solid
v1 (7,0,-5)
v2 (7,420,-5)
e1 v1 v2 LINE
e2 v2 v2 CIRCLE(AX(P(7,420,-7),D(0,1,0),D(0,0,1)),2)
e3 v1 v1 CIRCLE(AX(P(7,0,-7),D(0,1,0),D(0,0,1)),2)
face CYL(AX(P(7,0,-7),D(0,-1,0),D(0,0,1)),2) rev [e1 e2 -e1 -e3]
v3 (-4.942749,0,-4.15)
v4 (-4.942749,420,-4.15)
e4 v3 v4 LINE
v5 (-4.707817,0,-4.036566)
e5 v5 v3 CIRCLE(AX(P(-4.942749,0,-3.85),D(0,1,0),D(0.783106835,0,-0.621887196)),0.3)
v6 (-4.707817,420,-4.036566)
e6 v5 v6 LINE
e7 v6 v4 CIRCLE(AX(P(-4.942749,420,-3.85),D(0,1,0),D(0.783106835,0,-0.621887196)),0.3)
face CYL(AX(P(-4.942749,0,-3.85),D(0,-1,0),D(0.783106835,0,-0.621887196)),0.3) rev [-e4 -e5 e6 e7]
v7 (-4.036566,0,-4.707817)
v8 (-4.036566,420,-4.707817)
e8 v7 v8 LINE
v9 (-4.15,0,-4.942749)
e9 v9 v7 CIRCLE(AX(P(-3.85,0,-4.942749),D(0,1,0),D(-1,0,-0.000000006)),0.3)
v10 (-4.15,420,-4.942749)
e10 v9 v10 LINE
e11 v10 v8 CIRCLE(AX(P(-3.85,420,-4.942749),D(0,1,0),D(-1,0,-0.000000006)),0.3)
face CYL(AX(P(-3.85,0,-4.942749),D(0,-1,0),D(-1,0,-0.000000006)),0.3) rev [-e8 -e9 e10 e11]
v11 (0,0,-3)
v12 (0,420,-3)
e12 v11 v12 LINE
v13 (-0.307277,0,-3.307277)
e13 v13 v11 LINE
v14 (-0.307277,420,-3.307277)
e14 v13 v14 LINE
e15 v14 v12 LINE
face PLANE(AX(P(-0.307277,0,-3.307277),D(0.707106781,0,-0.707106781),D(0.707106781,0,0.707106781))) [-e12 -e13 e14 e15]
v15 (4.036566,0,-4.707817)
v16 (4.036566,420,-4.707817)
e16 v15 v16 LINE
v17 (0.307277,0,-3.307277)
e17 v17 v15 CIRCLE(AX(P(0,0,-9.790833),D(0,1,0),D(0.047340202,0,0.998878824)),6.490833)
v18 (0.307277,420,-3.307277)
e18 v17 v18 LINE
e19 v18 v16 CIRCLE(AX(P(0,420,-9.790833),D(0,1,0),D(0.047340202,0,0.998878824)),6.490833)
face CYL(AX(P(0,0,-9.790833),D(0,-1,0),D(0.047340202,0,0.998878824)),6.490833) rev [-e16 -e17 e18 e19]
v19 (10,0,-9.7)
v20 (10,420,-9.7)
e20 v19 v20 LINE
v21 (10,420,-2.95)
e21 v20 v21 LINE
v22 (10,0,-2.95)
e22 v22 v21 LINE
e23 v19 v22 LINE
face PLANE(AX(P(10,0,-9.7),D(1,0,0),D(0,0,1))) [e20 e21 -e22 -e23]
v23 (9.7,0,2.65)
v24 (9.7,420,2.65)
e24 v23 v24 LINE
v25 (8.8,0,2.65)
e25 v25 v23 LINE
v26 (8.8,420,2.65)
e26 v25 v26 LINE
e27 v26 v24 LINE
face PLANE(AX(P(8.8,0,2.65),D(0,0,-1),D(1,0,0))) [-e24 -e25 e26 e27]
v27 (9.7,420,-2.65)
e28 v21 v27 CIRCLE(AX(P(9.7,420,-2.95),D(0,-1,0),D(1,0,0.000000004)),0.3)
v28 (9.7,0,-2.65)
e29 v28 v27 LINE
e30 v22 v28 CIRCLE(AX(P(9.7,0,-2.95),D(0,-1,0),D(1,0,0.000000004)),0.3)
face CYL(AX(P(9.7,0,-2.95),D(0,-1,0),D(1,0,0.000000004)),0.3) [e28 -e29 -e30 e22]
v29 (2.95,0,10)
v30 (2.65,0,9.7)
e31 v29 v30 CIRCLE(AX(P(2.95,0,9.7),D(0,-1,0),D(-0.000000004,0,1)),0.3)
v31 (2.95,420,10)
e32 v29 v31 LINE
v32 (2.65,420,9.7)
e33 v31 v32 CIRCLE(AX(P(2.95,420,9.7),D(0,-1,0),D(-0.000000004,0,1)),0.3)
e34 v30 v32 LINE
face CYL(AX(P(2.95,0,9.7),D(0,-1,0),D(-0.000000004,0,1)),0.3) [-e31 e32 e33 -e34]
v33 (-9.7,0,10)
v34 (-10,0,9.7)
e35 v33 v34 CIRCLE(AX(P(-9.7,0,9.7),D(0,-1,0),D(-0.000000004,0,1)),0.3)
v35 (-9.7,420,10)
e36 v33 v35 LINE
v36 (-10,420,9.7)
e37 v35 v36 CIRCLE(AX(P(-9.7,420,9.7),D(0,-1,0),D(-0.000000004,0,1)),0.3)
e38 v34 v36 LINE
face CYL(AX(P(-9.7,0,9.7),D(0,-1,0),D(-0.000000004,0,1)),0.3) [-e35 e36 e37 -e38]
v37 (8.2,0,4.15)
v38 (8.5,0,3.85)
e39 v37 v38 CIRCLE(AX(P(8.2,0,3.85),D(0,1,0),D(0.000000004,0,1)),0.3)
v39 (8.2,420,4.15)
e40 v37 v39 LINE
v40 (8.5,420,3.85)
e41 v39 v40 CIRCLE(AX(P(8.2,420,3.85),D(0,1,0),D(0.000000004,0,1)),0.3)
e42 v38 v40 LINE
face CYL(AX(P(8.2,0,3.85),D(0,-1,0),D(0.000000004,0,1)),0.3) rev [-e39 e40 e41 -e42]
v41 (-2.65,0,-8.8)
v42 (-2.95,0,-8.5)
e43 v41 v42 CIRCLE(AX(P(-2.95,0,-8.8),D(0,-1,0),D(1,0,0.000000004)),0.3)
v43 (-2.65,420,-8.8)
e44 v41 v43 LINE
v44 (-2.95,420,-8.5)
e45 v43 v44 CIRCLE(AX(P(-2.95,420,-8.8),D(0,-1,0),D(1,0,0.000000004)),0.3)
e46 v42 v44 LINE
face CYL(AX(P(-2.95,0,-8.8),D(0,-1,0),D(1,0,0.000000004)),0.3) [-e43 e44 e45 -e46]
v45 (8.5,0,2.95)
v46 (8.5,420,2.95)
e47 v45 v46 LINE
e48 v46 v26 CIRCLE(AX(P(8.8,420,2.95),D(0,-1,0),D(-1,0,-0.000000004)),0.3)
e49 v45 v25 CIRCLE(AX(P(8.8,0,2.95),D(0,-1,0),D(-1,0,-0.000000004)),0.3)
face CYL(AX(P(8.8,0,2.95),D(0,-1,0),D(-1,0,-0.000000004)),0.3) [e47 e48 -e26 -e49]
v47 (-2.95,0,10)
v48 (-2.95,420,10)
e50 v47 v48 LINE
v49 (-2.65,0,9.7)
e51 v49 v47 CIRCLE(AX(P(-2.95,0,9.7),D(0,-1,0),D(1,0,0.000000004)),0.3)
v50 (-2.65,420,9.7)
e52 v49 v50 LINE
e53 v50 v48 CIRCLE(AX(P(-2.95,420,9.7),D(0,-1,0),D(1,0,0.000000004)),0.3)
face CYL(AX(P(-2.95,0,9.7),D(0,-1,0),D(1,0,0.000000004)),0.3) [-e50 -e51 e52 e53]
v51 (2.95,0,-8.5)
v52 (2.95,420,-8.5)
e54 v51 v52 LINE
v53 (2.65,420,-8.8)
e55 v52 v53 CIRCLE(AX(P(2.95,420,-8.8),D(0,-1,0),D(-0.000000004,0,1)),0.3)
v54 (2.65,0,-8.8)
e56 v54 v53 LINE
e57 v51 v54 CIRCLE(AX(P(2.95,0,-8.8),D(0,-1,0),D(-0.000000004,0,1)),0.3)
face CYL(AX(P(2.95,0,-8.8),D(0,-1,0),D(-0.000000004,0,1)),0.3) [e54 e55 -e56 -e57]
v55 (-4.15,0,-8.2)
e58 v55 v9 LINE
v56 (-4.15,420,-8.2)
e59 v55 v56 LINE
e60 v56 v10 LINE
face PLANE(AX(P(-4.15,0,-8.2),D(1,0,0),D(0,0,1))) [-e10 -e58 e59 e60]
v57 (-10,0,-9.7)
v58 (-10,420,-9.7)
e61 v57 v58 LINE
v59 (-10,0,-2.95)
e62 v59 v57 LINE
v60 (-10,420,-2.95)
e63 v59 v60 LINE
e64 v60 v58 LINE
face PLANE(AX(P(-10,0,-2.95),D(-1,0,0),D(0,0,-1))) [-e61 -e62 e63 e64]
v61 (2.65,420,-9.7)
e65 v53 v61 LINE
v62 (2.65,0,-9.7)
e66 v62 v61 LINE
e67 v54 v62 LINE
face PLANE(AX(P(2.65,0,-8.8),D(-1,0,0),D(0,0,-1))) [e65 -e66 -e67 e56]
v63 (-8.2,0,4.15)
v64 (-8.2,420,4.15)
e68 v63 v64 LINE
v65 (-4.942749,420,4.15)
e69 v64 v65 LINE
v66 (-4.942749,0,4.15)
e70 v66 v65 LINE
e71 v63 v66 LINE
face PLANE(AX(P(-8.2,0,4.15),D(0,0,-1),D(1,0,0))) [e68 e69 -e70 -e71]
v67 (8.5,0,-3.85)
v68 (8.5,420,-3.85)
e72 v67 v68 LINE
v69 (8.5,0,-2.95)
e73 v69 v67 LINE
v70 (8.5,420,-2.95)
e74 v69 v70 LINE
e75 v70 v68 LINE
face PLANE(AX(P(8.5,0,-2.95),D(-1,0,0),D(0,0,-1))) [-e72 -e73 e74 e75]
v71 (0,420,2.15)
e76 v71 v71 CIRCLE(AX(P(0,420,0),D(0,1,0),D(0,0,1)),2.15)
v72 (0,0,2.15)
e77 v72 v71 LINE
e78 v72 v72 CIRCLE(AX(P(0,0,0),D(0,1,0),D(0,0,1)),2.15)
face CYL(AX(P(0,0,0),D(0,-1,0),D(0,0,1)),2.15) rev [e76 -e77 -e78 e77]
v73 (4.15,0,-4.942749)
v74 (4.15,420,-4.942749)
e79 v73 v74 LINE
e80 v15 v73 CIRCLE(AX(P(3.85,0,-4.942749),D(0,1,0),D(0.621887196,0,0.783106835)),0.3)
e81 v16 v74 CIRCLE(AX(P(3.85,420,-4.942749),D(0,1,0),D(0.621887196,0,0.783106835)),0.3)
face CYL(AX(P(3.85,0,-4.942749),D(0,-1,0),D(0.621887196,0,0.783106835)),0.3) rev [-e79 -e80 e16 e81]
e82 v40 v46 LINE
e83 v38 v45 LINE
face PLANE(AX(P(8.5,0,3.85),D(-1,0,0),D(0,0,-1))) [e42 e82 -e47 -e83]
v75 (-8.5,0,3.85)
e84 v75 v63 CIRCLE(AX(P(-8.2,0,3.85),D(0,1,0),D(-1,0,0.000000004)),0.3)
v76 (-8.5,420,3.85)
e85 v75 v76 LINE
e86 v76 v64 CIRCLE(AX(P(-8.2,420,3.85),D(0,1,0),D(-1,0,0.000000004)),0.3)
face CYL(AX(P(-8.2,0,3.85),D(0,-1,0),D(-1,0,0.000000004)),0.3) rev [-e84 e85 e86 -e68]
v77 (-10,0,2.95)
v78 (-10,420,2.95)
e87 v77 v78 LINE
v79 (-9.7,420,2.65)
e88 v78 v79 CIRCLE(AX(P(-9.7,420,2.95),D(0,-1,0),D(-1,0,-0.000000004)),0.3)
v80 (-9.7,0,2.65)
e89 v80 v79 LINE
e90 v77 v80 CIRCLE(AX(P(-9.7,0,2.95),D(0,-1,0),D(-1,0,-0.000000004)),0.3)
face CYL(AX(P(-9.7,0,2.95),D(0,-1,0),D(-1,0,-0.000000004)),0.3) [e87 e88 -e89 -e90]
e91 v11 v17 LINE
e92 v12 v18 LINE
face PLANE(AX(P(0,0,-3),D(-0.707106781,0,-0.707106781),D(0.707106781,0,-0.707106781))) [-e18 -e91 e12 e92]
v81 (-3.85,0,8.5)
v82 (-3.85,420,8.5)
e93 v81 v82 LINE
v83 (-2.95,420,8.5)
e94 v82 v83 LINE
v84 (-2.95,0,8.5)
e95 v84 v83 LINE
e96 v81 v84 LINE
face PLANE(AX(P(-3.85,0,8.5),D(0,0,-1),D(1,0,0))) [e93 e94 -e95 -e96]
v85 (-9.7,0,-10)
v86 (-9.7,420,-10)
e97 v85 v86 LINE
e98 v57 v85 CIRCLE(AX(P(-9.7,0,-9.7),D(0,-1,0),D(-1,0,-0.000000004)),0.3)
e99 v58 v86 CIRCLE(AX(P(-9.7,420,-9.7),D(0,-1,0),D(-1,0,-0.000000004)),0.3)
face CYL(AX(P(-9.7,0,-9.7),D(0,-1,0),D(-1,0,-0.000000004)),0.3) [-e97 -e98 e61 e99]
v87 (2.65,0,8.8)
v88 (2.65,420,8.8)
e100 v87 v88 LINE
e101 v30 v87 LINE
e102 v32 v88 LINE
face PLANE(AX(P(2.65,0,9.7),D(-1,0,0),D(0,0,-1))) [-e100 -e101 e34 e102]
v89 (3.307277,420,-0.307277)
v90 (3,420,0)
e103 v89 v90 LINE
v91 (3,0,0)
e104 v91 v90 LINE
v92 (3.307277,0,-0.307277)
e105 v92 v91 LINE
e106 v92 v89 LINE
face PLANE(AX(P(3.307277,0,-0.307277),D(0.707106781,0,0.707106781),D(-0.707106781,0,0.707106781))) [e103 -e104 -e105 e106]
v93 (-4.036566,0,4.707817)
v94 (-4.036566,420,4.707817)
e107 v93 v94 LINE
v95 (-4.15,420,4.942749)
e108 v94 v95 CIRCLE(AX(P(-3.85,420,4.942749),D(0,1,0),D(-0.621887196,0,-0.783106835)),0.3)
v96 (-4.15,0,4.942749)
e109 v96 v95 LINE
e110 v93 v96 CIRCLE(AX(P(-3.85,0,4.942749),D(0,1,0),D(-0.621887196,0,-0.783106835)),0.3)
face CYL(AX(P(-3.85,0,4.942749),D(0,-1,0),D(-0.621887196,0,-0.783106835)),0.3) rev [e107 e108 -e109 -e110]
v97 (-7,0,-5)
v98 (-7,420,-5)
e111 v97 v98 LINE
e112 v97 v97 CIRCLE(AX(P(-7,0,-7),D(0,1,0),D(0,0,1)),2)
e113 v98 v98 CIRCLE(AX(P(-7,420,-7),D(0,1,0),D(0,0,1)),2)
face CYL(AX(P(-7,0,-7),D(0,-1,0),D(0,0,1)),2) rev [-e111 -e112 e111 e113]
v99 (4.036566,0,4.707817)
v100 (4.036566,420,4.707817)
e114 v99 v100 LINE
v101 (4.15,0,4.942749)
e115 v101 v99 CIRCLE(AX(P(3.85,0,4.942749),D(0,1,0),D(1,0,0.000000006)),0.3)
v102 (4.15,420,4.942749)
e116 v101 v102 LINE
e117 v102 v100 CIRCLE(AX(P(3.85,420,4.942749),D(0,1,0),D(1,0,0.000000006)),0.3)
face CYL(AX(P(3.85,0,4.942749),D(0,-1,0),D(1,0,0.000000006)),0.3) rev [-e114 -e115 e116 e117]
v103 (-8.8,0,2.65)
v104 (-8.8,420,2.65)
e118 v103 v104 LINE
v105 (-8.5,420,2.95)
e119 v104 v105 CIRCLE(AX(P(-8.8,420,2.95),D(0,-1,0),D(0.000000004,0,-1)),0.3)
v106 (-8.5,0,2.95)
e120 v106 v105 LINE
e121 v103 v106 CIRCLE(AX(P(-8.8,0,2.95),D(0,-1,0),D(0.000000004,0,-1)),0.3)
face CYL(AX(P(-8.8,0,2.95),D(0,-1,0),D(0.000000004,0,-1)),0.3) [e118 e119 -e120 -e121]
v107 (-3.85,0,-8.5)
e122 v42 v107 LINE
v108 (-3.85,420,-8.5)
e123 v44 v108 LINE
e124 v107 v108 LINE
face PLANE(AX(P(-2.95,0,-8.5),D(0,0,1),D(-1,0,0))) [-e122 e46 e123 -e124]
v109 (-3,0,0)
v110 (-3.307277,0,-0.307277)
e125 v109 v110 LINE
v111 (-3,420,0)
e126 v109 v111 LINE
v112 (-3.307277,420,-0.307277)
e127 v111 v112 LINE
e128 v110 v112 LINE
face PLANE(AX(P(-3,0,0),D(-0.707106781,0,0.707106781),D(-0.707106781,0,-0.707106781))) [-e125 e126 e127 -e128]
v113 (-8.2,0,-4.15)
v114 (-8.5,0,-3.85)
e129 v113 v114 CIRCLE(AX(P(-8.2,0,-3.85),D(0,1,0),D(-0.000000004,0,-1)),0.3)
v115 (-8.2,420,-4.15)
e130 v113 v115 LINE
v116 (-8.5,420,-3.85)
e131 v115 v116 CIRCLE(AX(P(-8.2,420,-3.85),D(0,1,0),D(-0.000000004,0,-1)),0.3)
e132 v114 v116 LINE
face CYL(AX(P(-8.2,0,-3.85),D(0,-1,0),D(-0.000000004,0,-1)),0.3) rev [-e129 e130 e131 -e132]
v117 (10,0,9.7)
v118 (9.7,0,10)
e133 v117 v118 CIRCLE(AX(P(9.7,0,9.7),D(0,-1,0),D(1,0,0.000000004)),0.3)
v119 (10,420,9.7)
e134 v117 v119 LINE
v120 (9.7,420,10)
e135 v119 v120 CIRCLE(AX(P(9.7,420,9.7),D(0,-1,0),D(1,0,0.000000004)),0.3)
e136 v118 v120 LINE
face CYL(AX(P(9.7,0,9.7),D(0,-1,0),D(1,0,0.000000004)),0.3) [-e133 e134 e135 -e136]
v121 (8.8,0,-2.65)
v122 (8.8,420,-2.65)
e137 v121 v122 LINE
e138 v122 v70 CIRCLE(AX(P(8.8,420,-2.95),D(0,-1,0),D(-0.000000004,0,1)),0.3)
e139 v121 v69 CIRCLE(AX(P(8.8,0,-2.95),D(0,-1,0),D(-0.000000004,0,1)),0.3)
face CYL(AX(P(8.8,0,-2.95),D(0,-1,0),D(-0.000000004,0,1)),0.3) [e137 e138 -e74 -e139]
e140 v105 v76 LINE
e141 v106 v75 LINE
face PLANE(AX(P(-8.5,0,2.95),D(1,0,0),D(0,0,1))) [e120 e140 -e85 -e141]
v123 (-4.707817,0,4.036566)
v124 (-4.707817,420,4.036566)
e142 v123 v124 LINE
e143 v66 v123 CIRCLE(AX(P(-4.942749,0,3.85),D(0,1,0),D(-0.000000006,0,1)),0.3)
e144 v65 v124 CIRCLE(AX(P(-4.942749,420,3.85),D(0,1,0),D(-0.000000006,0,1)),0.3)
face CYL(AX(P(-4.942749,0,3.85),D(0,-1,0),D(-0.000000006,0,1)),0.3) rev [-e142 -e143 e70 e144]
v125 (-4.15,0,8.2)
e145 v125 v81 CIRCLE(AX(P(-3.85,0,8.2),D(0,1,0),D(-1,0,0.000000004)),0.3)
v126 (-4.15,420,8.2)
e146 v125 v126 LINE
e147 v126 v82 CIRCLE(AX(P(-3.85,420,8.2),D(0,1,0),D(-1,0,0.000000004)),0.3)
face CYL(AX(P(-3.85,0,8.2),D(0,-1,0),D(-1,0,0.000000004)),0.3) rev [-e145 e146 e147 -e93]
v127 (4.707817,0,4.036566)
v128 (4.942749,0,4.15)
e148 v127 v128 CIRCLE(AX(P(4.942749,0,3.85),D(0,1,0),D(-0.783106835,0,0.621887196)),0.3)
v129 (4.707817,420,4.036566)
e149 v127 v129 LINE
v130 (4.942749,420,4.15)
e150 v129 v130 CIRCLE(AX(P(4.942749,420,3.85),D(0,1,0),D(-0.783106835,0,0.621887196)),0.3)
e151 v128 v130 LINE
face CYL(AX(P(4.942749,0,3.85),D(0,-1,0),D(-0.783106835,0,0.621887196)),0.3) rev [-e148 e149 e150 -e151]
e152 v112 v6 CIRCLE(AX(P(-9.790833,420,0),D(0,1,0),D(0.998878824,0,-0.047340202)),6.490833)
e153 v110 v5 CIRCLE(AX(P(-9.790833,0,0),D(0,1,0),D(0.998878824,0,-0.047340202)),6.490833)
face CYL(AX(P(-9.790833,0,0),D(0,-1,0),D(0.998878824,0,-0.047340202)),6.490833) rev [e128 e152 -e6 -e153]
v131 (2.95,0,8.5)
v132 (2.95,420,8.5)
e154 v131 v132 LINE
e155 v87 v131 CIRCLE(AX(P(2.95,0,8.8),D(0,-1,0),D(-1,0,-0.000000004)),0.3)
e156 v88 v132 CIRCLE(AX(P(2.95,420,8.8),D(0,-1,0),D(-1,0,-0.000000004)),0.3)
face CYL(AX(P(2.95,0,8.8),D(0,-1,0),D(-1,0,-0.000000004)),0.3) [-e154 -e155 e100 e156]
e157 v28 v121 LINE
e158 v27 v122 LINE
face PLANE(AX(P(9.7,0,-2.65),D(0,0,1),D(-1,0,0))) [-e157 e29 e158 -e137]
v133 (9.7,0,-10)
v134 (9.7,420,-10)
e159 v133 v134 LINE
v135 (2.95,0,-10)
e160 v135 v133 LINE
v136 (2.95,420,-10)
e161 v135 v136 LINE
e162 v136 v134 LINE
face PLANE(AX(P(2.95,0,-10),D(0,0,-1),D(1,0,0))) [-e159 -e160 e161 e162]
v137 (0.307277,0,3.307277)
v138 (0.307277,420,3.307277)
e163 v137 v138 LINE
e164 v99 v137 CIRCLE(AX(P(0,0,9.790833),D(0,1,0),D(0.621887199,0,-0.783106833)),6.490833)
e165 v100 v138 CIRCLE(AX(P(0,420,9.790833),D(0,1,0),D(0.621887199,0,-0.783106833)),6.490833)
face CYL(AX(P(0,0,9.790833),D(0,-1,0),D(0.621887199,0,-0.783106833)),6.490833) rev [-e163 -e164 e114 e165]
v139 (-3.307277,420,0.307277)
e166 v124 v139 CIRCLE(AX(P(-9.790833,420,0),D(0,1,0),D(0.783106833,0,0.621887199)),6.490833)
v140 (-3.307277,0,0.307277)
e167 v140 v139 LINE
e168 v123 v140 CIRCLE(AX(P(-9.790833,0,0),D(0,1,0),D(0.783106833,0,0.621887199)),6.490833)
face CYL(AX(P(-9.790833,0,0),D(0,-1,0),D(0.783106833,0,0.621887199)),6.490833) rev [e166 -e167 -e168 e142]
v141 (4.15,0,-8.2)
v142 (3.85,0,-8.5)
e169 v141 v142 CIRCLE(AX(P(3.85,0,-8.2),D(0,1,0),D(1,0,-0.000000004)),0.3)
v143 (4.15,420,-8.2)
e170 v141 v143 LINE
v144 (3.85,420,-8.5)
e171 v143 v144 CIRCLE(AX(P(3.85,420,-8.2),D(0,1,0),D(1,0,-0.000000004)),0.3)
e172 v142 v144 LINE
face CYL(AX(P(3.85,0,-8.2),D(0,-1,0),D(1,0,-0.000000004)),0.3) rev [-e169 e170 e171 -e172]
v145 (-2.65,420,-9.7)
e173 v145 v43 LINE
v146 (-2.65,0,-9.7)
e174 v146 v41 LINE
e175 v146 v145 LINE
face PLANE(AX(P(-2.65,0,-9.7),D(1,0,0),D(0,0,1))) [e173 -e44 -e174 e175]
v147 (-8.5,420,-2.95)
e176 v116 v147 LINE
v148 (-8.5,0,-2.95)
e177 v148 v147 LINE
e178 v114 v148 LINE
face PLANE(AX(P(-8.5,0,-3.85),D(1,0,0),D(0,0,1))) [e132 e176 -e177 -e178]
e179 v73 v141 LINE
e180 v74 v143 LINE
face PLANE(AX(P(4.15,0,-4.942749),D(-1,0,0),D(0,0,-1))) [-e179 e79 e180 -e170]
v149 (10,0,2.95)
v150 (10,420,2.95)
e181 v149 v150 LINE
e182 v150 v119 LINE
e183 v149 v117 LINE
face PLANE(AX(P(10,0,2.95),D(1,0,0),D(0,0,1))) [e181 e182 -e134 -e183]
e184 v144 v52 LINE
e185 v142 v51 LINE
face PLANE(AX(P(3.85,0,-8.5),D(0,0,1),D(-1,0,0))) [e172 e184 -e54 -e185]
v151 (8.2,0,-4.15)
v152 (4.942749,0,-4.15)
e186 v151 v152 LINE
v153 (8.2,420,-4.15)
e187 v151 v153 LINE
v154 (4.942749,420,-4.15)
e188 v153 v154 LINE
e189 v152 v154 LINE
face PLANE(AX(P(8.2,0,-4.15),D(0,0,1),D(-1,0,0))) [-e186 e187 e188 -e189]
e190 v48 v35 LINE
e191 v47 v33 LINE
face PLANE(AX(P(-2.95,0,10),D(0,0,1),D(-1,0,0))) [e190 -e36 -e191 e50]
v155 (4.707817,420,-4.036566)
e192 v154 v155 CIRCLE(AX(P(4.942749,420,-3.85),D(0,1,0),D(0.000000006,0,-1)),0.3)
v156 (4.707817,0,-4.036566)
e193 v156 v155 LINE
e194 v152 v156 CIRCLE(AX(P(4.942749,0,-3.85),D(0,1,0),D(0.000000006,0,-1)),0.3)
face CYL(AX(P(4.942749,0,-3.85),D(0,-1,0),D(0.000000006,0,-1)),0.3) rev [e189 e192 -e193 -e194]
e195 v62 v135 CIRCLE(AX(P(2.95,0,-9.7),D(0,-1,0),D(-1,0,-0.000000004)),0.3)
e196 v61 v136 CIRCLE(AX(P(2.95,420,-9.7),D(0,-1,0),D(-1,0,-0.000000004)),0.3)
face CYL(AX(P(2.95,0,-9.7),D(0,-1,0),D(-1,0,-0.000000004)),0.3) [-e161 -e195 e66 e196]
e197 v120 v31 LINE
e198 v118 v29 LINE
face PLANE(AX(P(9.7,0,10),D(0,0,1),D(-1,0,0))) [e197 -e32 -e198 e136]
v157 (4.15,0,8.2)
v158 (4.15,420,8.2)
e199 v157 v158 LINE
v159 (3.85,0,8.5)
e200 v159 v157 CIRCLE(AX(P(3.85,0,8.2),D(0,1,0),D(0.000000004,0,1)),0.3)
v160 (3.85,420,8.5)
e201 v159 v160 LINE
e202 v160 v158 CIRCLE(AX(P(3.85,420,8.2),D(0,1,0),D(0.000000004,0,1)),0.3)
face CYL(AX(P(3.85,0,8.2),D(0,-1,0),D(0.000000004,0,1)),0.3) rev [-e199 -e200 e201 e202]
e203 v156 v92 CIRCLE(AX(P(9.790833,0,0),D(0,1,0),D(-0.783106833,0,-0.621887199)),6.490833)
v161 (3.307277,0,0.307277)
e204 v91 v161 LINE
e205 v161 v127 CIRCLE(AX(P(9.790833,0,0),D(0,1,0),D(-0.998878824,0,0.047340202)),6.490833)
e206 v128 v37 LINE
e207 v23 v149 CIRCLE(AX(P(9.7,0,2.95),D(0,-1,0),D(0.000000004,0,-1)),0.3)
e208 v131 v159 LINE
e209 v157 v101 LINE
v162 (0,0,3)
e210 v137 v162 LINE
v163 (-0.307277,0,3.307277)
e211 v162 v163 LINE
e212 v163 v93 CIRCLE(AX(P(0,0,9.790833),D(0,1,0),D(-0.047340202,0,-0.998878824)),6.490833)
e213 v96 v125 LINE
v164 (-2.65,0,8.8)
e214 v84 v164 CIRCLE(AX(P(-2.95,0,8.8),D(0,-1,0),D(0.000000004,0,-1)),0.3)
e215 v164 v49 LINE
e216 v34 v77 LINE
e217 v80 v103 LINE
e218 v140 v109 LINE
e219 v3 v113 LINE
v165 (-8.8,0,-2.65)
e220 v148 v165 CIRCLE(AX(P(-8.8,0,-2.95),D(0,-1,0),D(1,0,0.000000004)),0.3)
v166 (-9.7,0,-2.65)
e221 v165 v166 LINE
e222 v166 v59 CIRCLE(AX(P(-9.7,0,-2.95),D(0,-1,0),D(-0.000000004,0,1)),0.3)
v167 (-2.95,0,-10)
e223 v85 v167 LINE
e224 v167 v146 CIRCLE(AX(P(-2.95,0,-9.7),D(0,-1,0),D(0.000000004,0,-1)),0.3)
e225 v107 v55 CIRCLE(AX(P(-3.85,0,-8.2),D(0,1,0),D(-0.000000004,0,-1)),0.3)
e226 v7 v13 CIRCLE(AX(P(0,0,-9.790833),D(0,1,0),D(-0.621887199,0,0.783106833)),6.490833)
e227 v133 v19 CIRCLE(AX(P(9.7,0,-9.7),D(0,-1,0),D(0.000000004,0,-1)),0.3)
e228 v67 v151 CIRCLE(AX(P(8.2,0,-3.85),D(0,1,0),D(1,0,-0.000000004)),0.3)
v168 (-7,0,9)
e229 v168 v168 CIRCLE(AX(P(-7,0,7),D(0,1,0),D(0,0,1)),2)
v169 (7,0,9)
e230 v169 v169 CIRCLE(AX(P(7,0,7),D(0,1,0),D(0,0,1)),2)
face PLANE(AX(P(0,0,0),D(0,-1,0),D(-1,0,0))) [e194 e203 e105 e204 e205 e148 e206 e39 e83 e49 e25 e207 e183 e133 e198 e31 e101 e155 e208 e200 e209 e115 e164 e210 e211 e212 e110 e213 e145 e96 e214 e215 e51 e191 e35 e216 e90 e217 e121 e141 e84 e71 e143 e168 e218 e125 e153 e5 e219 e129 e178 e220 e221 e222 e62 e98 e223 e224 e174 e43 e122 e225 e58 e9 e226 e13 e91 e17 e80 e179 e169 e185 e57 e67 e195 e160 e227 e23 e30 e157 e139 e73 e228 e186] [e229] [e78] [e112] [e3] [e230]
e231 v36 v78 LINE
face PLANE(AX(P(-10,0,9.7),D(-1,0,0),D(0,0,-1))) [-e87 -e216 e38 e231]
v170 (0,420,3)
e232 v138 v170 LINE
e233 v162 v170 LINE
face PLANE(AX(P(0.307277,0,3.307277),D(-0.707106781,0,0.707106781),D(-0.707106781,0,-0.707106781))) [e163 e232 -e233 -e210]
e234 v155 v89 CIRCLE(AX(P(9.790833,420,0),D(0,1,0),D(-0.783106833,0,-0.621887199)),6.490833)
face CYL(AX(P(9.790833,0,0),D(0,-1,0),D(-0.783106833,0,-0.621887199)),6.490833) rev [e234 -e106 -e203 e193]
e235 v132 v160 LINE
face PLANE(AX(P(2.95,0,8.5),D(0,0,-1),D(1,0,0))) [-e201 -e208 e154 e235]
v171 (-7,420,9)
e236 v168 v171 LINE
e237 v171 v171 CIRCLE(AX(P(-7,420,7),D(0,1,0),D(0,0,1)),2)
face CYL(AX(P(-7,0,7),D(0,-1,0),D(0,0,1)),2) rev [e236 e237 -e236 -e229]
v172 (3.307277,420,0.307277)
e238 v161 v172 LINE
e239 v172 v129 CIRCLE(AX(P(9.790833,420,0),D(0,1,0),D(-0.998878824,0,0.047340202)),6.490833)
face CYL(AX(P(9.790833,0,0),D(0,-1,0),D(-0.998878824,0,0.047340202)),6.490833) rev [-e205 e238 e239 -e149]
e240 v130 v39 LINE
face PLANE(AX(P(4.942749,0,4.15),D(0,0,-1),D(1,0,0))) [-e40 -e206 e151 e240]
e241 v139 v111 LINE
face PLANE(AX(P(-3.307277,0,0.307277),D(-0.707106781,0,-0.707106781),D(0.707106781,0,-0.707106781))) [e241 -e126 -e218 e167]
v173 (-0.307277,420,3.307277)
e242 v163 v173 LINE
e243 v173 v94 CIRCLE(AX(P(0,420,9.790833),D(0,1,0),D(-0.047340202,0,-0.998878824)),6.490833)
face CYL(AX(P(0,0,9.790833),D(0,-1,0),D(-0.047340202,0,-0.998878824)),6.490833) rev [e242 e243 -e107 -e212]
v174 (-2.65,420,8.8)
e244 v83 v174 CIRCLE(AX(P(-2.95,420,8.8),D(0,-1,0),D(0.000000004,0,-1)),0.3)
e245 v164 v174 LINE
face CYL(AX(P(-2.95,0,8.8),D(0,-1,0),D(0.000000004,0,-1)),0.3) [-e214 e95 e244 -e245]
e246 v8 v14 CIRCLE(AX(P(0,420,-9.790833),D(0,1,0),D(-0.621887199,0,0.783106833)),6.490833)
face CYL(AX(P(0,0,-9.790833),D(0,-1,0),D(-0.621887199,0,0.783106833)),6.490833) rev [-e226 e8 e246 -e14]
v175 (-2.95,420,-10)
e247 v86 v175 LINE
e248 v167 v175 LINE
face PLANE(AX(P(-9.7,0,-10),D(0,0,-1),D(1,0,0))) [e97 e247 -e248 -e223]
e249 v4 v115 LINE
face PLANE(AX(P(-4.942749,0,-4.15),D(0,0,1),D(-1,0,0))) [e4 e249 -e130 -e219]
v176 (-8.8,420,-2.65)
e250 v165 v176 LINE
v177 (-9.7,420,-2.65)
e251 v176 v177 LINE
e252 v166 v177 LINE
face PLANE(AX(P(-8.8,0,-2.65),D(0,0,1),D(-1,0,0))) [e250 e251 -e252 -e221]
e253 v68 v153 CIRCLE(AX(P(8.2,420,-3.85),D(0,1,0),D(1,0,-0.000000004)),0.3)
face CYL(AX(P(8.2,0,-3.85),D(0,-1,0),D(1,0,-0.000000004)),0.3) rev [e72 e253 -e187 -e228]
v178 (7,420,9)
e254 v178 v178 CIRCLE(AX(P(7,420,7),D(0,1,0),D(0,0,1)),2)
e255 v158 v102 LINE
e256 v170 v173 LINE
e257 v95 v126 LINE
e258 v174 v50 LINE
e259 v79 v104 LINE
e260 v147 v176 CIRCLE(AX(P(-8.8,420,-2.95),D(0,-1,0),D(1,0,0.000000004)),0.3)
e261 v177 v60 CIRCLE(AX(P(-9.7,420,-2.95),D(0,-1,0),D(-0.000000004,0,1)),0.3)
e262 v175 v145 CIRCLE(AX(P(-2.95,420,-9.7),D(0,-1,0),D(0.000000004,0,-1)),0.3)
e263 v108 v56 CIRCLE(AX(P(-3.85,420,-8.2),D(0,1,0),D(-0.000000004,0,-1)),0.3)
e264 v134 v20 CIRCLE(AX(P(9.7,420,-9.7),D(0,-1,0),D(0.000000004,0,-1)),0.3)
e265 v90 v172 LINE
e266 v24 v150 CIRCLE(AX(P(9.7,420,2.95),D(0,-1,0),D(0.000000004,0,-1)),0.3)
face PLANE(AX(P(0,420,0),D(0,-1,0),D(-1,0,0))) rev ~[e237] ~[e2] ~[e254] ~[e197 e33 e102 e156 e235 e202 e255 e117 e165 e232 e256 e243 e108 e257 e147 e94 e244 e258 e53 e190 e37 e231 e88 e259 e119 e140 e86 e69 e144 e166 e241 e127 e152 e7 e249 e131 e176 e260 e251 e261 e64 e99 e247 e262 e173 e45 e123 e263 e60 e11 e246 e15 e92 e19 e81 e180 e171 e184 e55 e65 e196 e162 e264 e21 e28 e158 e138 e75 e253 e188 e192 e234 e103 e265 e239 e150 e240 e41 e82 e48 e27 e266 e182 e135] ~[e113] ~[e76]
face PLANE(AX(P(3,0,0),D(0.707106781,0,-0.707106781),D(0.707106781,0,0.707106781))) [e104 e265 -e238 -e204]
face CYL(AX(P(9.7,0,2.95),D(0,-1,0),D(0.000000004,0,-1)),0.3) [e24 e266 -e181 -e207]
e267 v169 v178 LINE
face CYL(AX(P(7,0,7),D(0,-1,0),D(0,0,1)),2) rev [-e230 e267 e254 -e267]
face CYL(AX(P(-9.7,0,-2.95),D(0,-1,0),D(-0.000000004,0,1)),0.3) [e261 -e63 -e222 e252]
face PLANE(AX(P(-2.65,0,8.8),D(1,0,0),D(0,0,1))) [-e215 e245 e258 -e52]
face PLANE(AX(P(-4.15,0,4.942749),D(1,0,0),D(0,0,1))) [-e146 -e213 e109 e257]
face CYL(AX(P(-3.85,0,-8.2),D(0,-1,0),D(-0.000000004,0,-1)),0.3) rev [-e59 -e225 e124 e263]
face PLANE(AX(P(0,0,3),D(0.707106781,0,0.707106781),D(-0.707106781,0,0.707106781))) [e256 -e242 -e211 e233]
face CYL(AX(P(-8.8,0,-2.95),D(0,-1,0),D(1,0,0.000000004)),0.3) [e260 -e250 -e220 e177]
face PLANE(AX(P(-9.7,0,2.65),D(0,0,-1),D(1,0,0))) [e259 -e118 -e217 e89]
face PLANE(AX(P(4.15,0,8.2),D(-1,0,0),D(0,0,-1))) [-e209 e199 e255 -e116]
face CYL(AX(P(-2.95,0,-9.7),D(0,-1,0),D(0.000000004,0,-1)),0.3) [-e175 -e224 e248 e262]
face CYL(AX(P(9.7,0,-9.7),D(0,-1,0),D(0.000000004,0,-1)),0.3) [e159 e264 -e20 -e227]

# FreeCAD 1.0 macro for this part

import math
import FreeCAD as App
import Part
import Sketcher

doc = App.newDocument("Part")
body = doc.addObject("PartDesign::Body", "Body")

# Sketch on XZ plane
sketch1 = body.newObject("Sketcher::SketchObject", "Sketch")
sketch1.AttachmentSupport = (doc.getObject("XZ_Plane"), [""])
sketch1.MapMode = "FlatFace"
sketch1.addGeometry([
    Part.LineSegment(App.Vector(4.15, -8.2, 0), App.Vector(4.15, -4.942749, 0)),  # 0
    Part.ArcOfCircle(Part.Circle(App.Vector(3.85, -4.942749, 0), App.Vector(0, 0, 1), 0.3), math.radians(0), math.radians(51.545921)),  # 1
    Part.ArcOfCircle(Part.Circle(App.Vector(0, -9.790833, 0), App.Vector(0, 0, 1), 6.490833), math.radians(51.545921), math.radians(87.286592)),  # 2
    Part.LineSegment(App.Vector(0.307277, -3.307277, 0), App.Vector(0, -3, 0)),  # 3
    Part.LineSegment(App.Vector(0, -3, 0), App.Vector(-0.307277, -3.307277, 0)),  # 4
    Part.ArcOfCircle(Part.Circle(App.Vector(0, -9.790833, 0), App.Vector(0, 0, 1), 6.490833), math.radians(92.713408), math.radians(128.454079)),  # 5
    Part.ArcOfCircle(Part.Circle(App.Vector(-3.85, -4.942749, 0), App.Vector(0, 0, 1), 0.3), math.radians(128.454079), math.radians(180)),  # 6
    Part.LineSegment(App.Vector(-4.15, -4.942749, 0), App.Vector(-4.15, -8.2, 0)),  # 7
    Part.ArcOfCircle(Part.Circle(App.Vector(-3.85, -8.2, 0), App.Vector(0, 0, 1), 0.3), math.radians(-180), math.radians(-90)),  # 8
    Part.LineSegment(App.Vector(-3.85, -8.5, 0), App.Vector(-2.95, -8.5, 0)),  # 9
    Part.ArcOfCircle(Part.Circle(App.Vector(-2.95, -8.8, 0), App.Vector(0, 0, 1), 0.3), math.radians(0), math.radians(90)),  # 10
    Part.LineSegment(App.Vector(-2.65, -8.8, 0), App.Vector(-2.65, -9.7, 0)),  # 11
    Part.ArcOfCircle(Part.Circle(App.Vector(-2.95, -9.7, 0), App.Vector(0, 0, 1), 0.3), math.radians(-90), math.radians(0)),  # 12
    Part.LineSegment(App.Vector(-2.95, -10, 0), App.Vector(-9.7, -10, 0)),  # 13
    Part.ArcOfCircle(Part.Circle(App.Vector(-9.7, -9.7, 0), App.Vector(0, 0, 1), 0.3), math.radians(-180), math.radians(-90)),  # 14
    Part.LineSegment(App.Vector(-10, -9.7, 0), App.Vector(-10, -2.95, 0)),  # 15
    Part.ArcOfCircle(Part.Circle(App.Vector(-9.7, -2.95, 0), App.Vector(0, 0, 1), 0.3), math.radians(90), math.radians(180)),  # 16
    Part.LineSegment(App.Vector(-9.7, -2.65, 0), App.Vector(-8.8, -2.65, 0)),  # 17
    Part.ArcOfCircle(Part.Circle(App.Vector(-8.8, -2.95, 0), App.Vector(0, 0, 1), 0.3), math.radians(0), math.radians(90)),  # 18
    Part.LineSegment(App.Vector(-8.5, -2.95, 0), App.Vector(-8.5, -3.85, 0)),  # 19
    Part.ArcOfCircle(Part.Circle(App.Vector(-8.2, -3.85, 0), App.Vector(0, 0, 1), 0.3), math.radians(-180), math.radians(-90)),  # 20
    Part.LineSegment(App.Vector(-8.2, -4.15, 0), App.Vector(-4.942749, -4.15, 0)),  # 21
    Part.ArcOfCircle(Part.Circle(App.Vector(-4.942749, -3.85, 0), App.Vector(0, 0, 1), 0.3), math.radians(-90), math.radians(-38.454079)),  # 22
    Part.ArcOfCircle(Part.Circle(App.Vector(-9.790833, 0, 0), App.Vector(0, 0, 1), 6.490833), math.radians(-38.454079), math.radians(-2.713408)),  # 23
    Part.LineSegment(App.Vector(-3.307277, -0.307277, 0), App.Vector(-3, 0, 0)),  # 24
    Part.LineSegment(App.Vector(-3, 0, 0), App.Vector(-3.307277, 0.307277, 0)),  # 25
    Part.ArcOfCircle(Part.Circle(App.Vector(-9.790833, 0, 0), App.Vector(0, 0, 1), 6.490833), math.radians(2.713408), math.radians(38.454079)),  # 26
    Part.ArcOfCircle(Part.Circle(App.Vector(-4.942749, 3.85, 0), App.Vector(0, 0, 1), 0.3), math.radians(38.454079), math.radians(90)),  # 27
    Part.LineSegment(App.Vector(-4.942749, 4.15, 0), App.Vector(-8.2, 4.15, 0)),  # 28
    Part.ArcOfCircle(Part.Circle(App.Vector(-8.2, 3.85, 0), App.Vector(0, 0, 1), 0.3), math.radians(90), math.radians(180)),  # 29
    Part.LineSegment(App.Vector(-8.5, 3.85, 0), App.Vector(-8.5, 2.95, 0)),  # 30
    Part.ArcOfCircle(Part.Circle(App.Vector(-8.8, 2.95, 0), App.Vector(0, 0, 1), 0.3), math.radians(-90), math.radians(0)),  # 31
    Part.LineSegment(App.Vector(-8.8, 2.65, 0), App.Vector(-9.7, 2.65, 0)),  # 32
    Part.ArcOfCircle(Part.Circle(App.Vector(-9.7, 2.95, 0), App.Vector(0, 0, 1), 0.3), math.radians(-180), math.radians(-90)),  # 33
    Part.LineSegment(App.Vector(-10, 2.95, 0), App.Vector(-10, 9.7, 0)),  # 34
    Part.ArcOfCircle(Part.Circle(App.Vector(-9.7, 9.7, 0), App.Vector(0, 0, 1), 0.3), math.radians(90), math.radians(180)),  # 35
    Part.LineSegment(App.Vector(-9.7, 10, 0), App.Vector(-2.95, 10, 0)),  # 36
    Part.ArcOfCircle(Part.Circle(App.Vector(-2.95, 9.7, 0), App.Vector(0, 0, 1), 0.3), math.radians(0), math.radians(90)),  # 37
    Part.LineSegment(App.Vector(-2.65, 9.7, 0), App.Vector(-2.65, 8.8, 0)),  # 38
    Part.ArcOfCircle(Part.Circle(App.Vector(-2.95, 8.8, 0), App.Vector(0, 0, 1), 0.3), math.radians(-90), math.radians(0)),  # 39
    Part.LineSegment(App.Vector(-2.95, 8.5, 0), App.Vector(-3.85, 8.5, 0)),  # 40
    Part.ArcOfCircle(Part.Circle(App.Vector(-3.85, 8.2, 0), App.Vector(0, 0, 1), 0.3), math.radians(90), math.radians(180)),  # 41
    Part.LineSegment(App.Vector(-4.15, 8.2, 0), App.Vector(-4.15, 4.942749, 0)),  # 42
    Part.ArcOfCircle(Part.Circle(App.Vector(-3.85, 4.942749, 0), App.Vector(0, 0, 1), 0.3), math.radians(180), math.radians(231.545921)),  # 43
    Part.ArcOfCircle(Part.Circle(App.Vector(0, 9.790833, 0), App.Vector(0, 0, 1), 6.490833), math.radians(-128.454079), math.radians(-92.713408)),  # 44
    Part.LineSegment(App.Vector(-0.307277, 3.307277, 0), App.Vector(0, 3, 0)),  # 45
    Part.LineSegment(App.Vector(0, 3, 0), App.Vector(0.307277, 3.307277, 0)),  # 46
    Part.ArcOfCircle(Part.Circle(App.Vector(0, 9.790833, 0), App.Vector(0, 0, 1), 6.490833), math.radians(-87.286592), math.radians(-51.545921)),  # 47
    Part.ArcOfCircle(Part.Circle(App.Vector(3.85, 4.942749, 0), App.Vector(0, 0, 1), 0.3), math.radians(-51.545921), math.radians(0)),  # 48
    Part.LineSegment(App.Vector(4.15, 4.942749, 0), App.Vector(4.15, 8.2, 0)),  # 49
    Part.ArcOfCircle(Part.Circle(App.Vector(3.85, 8.2, 0), App.Vector(0, 0, 1), 0.3), math.radians(0), math.radians(90)),  # 50
    Part.LineSegment(App.Vector(3.85, 8.5, 0), App.Vector(2.95, 8.5, 0)),  # 51
    Part.ArcOfCircle(Part.Circle(App.Vector(2.95, 8.8, 0), App.Vector(0, 0, 1), 0.3), math.radians(-180), math.radians(-90)),  # 52
    Part.LineSegment(App.Vector(2.65, 8.8, 0), App.Vector(2.65, 9.7, 0)),  # 53
    Part.ArcOfCircle(Part.Circle(App.Vector(2.95, 9.7, 0), App.Vector(0, 0, 1), 0.3), math.radians(90), math.radians(180)),  # 54
    Part.LineSegment(App.Vector(2.95, 10, 0), App.Vector(9.7, 10, 0)),  # 55
    Part.ArcOfCircle(Part.Circle(App.Vector(9.7, 9.7, 0), App.Vector(0, 0, 1), 0.3), math.radians(0), math.radians(90)),  # 56
    Part.LineSegment(App.Vector(10, 9.7, 0), App.Vector(10, 2.95, 0)),  # 57
    Part.ArcOfCircle(Part.Circle(App.Vector(9.7, 2.95, 0), App.Vector(0, 0, 1), 0.3), math.radians(-90), math.radians(0)),  # 58
    Part.LineSegment(App.Vector(9.7, 2.65, 0), App.Vector(8.8, 2.65, 0)),  # 59
    Part.ArcOfCircle(Part.Circle(App.Vector(8.8, 2.95, 0), App.Vector(0, 0, 1), 0.3), math.radians(-180), math.radians(-90)),  # 60
    Part.LineSegment(App.Vector(8.5, 2.95, 0), App.Vector(8.5, 3.85, 0)),  # 61
    Part.ArcOfCircle(Part.Circle(App.Vector(8.2, 3.85, 0), App.Vector(0, 0, 1), 0.3), math.radians(0), math.radians(90)),  # 62
    Part.LineSegment(App.Vector(8.2, 4.15, 0), App.Vector(4.942749, 4.15, 0)),  # 63
    Part.ArcOfCircle(Part.Circle(App.Vector(4.942749, 3.85, 0), App.Vector(0, 0, 1), 0.3), math.radians(90), math.radians(141.545921)),  # 64
    Part.ArcOfCircle(Part.Circle(App.Vector(9.790833, 0, 0), App.Vector(0, 0, 1), 6.490833), math.radians(141.545921), math.radians(177.286592)),  # 65
    Part.LineSegment(App.Vector(3.307277, 0.307277, 0), App.Vector(3, 0, 0)),  # 66
    Part.LineSegment(App.Vector(3, 0, 0), App.Vector(3.307277, -0.307277, 0)),  # 67
    Part.ArcOfCircle(Part.Circle(App.Vector(9.790833, 0, 0), App.Vector(0, 0, 1), 6.490833), math.radians(-177.286592), math.radians(-141.545921)),  # 68
    Part.ArcOfCircle(Part.Circle(App.Vector(4.942749, -3.85, 0), App.Vector(0, 0, 1), 0.3), math.radians(-141.545921), math.radians(-90)),  # 69
    Part.LineSegment(App.Vector(4.942749, -4.15, 0), App.Vector(8.2, -4.15, 0)),  # 70
    Part.ArcOfCircle(Part.Circle(App.Vector(8.2, -3.85, 0), App.Vector(0, 0, 1), 0.3), math.radians(-90), math.radians(0)),  # 71
    Part.LineSegment(App.Vector(8.5, -3.85, 0), App.Vector(8.5, -2.95, 0)),  # 72
    Part.ArcOfCircle(Part.Circle(App.Vector(8.8, -2.95, 0), App.Vector(0, 0, 1), 0.3), math.radians(90), math.radians(180)),  # 73
    Part.LineSegment(App.Vector(8.8, -2.65, 0), App.Vector(9.7, -2.65, 0)),  # 74
    Part.ArcOfCircle(Part.Circle(App.Vector(9.7, -2.95, 0), App.Vector(0, 0, 1), 0.3), math.radians(0), math.radians(90)),  # 75
    Part.LineSegment(App.Vector(10, -2.95, 0), App.Vector(10, -9.7, 0)),  # 76
    Part.ArcOfCircle(Part.Circle(App.Vector(9.7, -9.7, 0), App.Vector(0, 0, 1), 0.3), math.radians(-90), math.radians(0)),  # 77
    Part.LineSegment(App.Vector(9.7, -10, 0), App.Vector(2.95, -10, 0)),  # 78
    Part.ArcOfCircle(Part.Circle(App.Vector(2.95, -9.7, 0), App.Vector(0, 0, 1), 0.3), math.radians(-180), math.radians(-90)),  # 79
    Part.LineSegment(App.Vector(2.65, -9.7, 0), App.Vector(2.65, -8.8, 0)),  # 80
    Part.ArcOfCircle(Part.Circle(App.Vector(2.95, -8.8, 0), App.Vector(0, 0, 1), 0.3), math.radians(90), math.radians(180)),  # 81
    Part.LineSegment(App.Vector(2.95, -8.5, 0), App.Vector(3.85, -8.5, 0)),  # 82
    Part.ArcOfCircle(Part.Circle(App.Vector(3.85, -8.2, 0), App.Vector(0, 0, 1), 0.3), math.radians(-90), math.radians(0)),  # 83
    Part.Circle(App.Vector(7, 7, 0), App.Vector(0, 0, 1), 2),  # 84
    Part.Circle(App.Vector(-7, 7, 0), App.Vector(0, 0, 1), 2),  # 85
    Part.Circle(App.Vector(7, -7, 0), App.Vector(0, 0, 1), 2),  # 86
    Part.Circle(App.Vector(0, 0, 0), App.Vector(0, 0, 1), 2.15),  # 87
    Part.Circle(App.Vector(-7, -7, 0), App.Vector(0, 0, 1), 2),  # 88
], False)
sketch1.addConstraint([
    Sketcher.Constraint("Tangent", 0, 2, 1, 1),
    Sketcher.Constraint("Tangent", 1, 2, 2, 1),
    Sketcher.Constraint("Coincident", 2, 2, 3, 1),
    Sketcher.Constraint("Coincident", 3, 2, 4, 1),
    Sketcher.Constraint("Coincident", 4, 2, 5, 1),
    Sketcher.Constraint("Tangent", 5, 2, 6, 1),
    Sketcher.Constraint("Tangent", 6, 2, 7, 1),
    Sketcher.Constraint("Tangent", 7, 2, 8, 1),
    Sketcher.Constraint("Tangent", 8, 2, 9, 1),
    Sketcher.Constraint("Tangent", 9, 2, 10, 2),
    Sketcher.Constraint("Tangent", 10, 1, 11, 1),
    Sketcher.Constraint("Tangent", 11, 2, 12, 2),
    Sketcher.Constraint("Tangent", 12, 1, 13, 1),
    Sketcher.Constraint("Tangent", 13, 2, 14, 2),
    Sketcher.Constraint("Tangent", 14, 1, 15, 1),
    Sketcher.Constraint("Tangent", 15, 2, 16, 2),
    Sketcher.Constraint("Tangent", 16, 1, 17, 1),
    Sketcher.Constraint("Tangent", 17, 2, 18, 2),
    Sketcher.Constraint("Tangent", 18, 1, 19, 1),
    Sketcher.Constraint("Tangent", 19, 2, 20, 1),
    Sketcher.Constraint("Tangent", 20, 2, 21, 1),
    Sketcher.Constraint("Tangent", 21, 2, 22, 1),
    Sketcher.Constraint("Tangent", 22, 2, 23, 1),
    Sketcher.Constraint("Coincident", 23, 2, 24, 1),
    Sketcher.Constraint("Coincident", 24, 2, 25, 1),
    Sketcher.Constraint("Coincident", 25, 2, 26, 1),
    Sketcher.Constraint("Tangent", 26, 2, 27, 1),
    Sketcher.Constraint("Tangent", 27, 2, 28, 1),
    Sketcher.Constraint("Tangent", 28, 2, 29, 1),
    Sketcher.Constraint("Tangent", 29, 2, 30, 1),
    Sketcher.Constraint("Tangent", 30, 2, 31, 2),
    Sketcher.Constraint("Tangent", 31, 1, 32, 1),
    Sketcher.Constraint("Tangent", 32, 2, 33, 2),
    Sketcher.Constraint("Tangent", 33, 1, 34, 1),
    Sketcher.Constraint("Tangent", 34, 2, 35, 2),
    Sketcher.Constraint("Tangent", 35, 1, 36, 1),
    Sketcher.Constraint("Tangent", 36, 2, 37, 2),
    Sketcher.Constraint("Tangent", 37, 1, 38, 1),
    Sketcher.Constraint("Tangent", 38, 2, 39, 2),
    Sketcher.Constraint("Tangent", 39, 1, 40, 1),
    Sketcher.Constraint("Tangent", 40, 2, 41, 1),
    Sketcher.Constraint("Tangent", 41, 2, 42, 1),
    Sketcher.Constraint("Tangent", 42, 2, 43, 1),
    Sketcher.Constraint("Tangent", 43, 2, 44, 1),
    Sketcher.Constraint("Coincident", 44, 2, 45, 1),
    Sketcher.Constraint("Coincident", 45, 2, 46, 1),
    Sketcher.Constraint("Coincident", 46, 2, 47, 1),
    Sketcher.Constraint("Tangent", 47, 2, 48, 1),
    Sketcher.Constraint("Tangent", 48, 2, 49, 1),
    Sketcher.Constraint("Tangent", 49, 2, 50, 1),
    Sketcher.Constraint("Tangent", 50, 2, 51, 1),
    Sketcher.Constraint("Tangent", 51, 2, 52, 2),
    Sketcher.Constraint("Tangent", 52, 1, 53, 1),
    Sketcher.Constraint("Tangent", 53, 2, 54, 2),
    Sketcher.Constraint("Tangent", 54, 1, 55, 1),
    Sketcher.Constraint("Tangent", 55, 2, 56, 2),
    Sketcher.Constraint("Tangent", 56, 1, 57, 1),
    Sketcher.Constraint("Tangent", 57, 2, 58, 2),
    Sketcher.Constraint("Tangent", 58, 1, 59, 1),
    Sketcher.Constraint("Tangent", 59, 2, 60, 2),
    Sketcher.Constraint("Tangent", 60, 1, 61, 1),
    Sketcher.Constraint("Tangent", 61, 2, 62, 1),
    Sketcher.Constraint("Tangent", 62, 2, 63, 1),
    Sketcher.Constraint("Tangent", 63, 2, 64, 1),
    Sketcher.Constraint("Tangent", 64, 2, 65, 1),
    Sketcher.Constraint("Coincident", 65, 2, 66, 1),
    Sketcher.Constraint("Coincident", 66, 2, 67, 1),
    Sketcher.Constraint("Coincident", 67, 2, 68, 1),
    Sketcher.Constraint("Tangent", 68, 2, 69, 1),
    Sketcher.Constraint("Tangent", 69, 2, 70, 1),
    Sketcher.Constraint("Tangent", 70, 2, 71, 1),
    Sketcher.Constraint("Tangent", 71, 2, 72, 1),
    Sketcher.Constraint("Tangent", 72, 2, 73, 2),
    Sketcher.Constraint("Tangent", 73, 1, 74, 1),
    Sketcher.Constraint("Tangent", 74, 2, 75, 2),
    Sketcher.Constraint("Tangent", 75, 1, 76, 1),
    Sketcher.Constraint("Tangent", 76, 2, 77, 2),
    Sketcher.Constraint("Tangent", 77, 1, 78, 1),
    Sketcher.Constraint("Tangent", 78, 2, 79, 2),
    Sketcher.Constraint("Tangent", 79, 1, 80, 1),
    Sketcher.Constraint("Tangent", 80, 2, 81, 2),
    Sketcher.Constraint("Tangent", 81, 1, 82, 1),
    Sketcher.Constraint("Tangent", 82, 2, 83, 1),
    Sketcher.Constraint("Tangent", 83, 2, 0, 1),
    Sketcher.Constraint("Vertical", 0),
    Sketcher.Constraint("Vertical", 7),
    Sketcher.Constraint("Horizontal", 9),
    Sketcher.Constraint("Vertical", 11),
    Sketcher.Constraint("Horizontal", 13),
    Sketcher.Constraint("Vertical", 15),
    Sketcher.Constraint("Horizontal", 17),
    Sketcher.Constraint("Vertical", 19),
    Sketcher.Constraint("Horizontal", 21),
    Sketcher.Constraint("Horizontal", 28),
    Sketcher.Constraint("Vertical", 30),
    Sketcher.Constraint("Horizontal", 32),
    Sketcher.Constraint("Vertical", 34),
    Sketcher.Constraint("Horizontal", 36),
    Sketcher.Constraint("Vertical", 38),
    Sketcher.Constraint("Horizontal", 40),
    Sketcher.Constraint("Vertical", 42),
    Sketcher.Constraint("Vertical", 49),
    Sketcher.Constraint("Horizontal", 51),
    Sketcher.Constraint("Vertical", 53),
    Sketcher.Constraint("Horizontal", 55),
    Sketcher.Constraint("Vertical", 57),
    Sketcher.Constraint("Horizontal", 59),
    Sketcher.Constraint("Vertical", 61),
    Sketcher.Constraint("Horizontal", 63),
    Sketcher.Constraint("Horizontal", 70),
    Sketcher.Constraint("Vertical", 72),
    Sketcher.Constraint("Horizontal", 74),
    Sketcher.Constraint("Vertical", 76),
    Sketcher.Constraint("Horizontal", 78),
    Sketcher.Constraint("Vertical", 80),
    Sketcher.Constraint("Horizontal", 82),
    Sketcher.Constraint("Coincident", 87, 3, -1, 1),
    Sketcher.Constraint("Coincident", 5, 3, 2, 3),
    Sketcher.Constraint("Coincident", 26, 3, 23, 3),
    Sketcher.Constraint("Coincident", 47, 3, 44, 3),
    Sketcher.Constraint("Coincident", 68, 3, 65, 3),
    Sketcher.Constraint("Equal", 2, 5),
    Sketcher.Constraint("Equal", 1, 6),
    Sketcher.Constraint("Equal", 6, 8),
    Sketcher.Constraint("Equal", 8, 10),
    Sketcher.Constraint("Equal", 10, 12),
    Sketcher.Constraint("Equal", 12, 14),
    Sketcher.Constraint("Equal", 14, 16),
    Sketcher.Constraint("Equal", 16, 18),
    Sketcher.Constraint("Equal", 18, 20),
    Sketcher.Constraint("Equal", 20, 22),
    Sketcher.Constraint("Equal", 5, 23),
    Sketcher.Constraint("Equal", 23, 26),
    Sketcher.Constraint("Equal", 22, 27),
    Sketcher.Constraint("Equal", 27, 29),
    Sketcher.Constraint("Equal", 29, 31),
    Sketcher.Constraint("Equal", 31, 33),
    Sketcher.Constraint("Equal", 33, 35),
    Sketcher.Constraint("Equal", 35, 37),
    Sketcher.Constraint("Equal", 37, 39),
    Sketcher.Constraint("Equal", 39, 41),
    Sketcher.Constraint("Equal", 41, 43),
    Sketcher.Constraint("Equal", 26, 44),
    Sketcher.Constraint("Equal", 44, 47),
    Sketcher.Constraint("Equal", 43, 48),
    Sketcher.Constraint("Equal", 48, 50),
    Sketcher.Constraint("Equal", 50, 52),
    Sketcher.Constraint("Equal", 52, 54),
    Sketcher.Constraint("Equal", 54, 56),
    Sketcher.Constraint("Equal", 56, 58),
    Sketcher.Constraint("Equal", 58, 60),
    Sketcher.Constraint("Equal", 60, 62),
    Sketcher.Constraint("Equal", 62, 64),
    Sketcher.Constraint("Equal", 47, 65),
    Sketcher.Constraint("Equal", 65, 68),
    Sketcher.Constraint("Equal", 64, 69),
    Sketcher.Constraint("Equal", 69, 71),
    Sketcher.Constraint("Equal", 71, 73),
    Sketcher.Constraint("Equal", 73, 75),
    Sketcher.Constraint("Equal", 75, 77),
    Sketcher.Constraint("Equal", 77, 79),
    Sketcher.Constraint("Equal", 79, 81),
    Sketcher.Constraint("Equal", 81, 83),
    Sketcher.Constraint("Equal", 84, 85),
    Sketcher.Constraint("Equal", 85, 86),
    Sketcher.Constraint("Equal", 86, 88),
    Sketcher.Constraint("Symmetric", 1, 3, 43, 3, -1, 1),
    Sketcher.Constraint("Symmetric", 6, 3, 48, 3, -1, 1),
    Sketcher.Constraint("Symmetric", 10, 3, 52, 3, -1, 1),
    Sketcher.Constraint("Symmetric", 14, 3, 56, 3, -1, 1),
    Sketcher.Constraint("Symmetric", 18, 3, 60, 3, -1, 1),
    Sketcher.Constraint("Symmetric", 22, 3, 64, 3, -1, 1),
    Sketcher.Constraint("Symmetric", 27, 3, 69, 3, -1, 1),
    Sketcher.Constraint("Symmetric", 31, 3, 73, 3, -1, 1),
    Sketcher.Constraint("Symmetric", 35, 3, 77, 3, -1, 1),
    Sketcher.Constraint("Symmetric", 39, 3, 81, 3, -1, 1),
    Sketcher.Constraint("Symmetric", 85, 3, 86, 3, -1, 1),
    Sketcher.Constraint("Symmetric", 84, 3, 88, 3, -1, 1),
    Sketcher.Constraint("Symmetric", 3, 2, 45, 2, -1, 1),
    Sketcher.Constraint("Symmetric", 24, 2, 66, 2, -1, 1),
    Sketcher.Constraint("Symmetric", 1, 3, 6, 3, -2),
    Sketcher.Constraint("Symmetric", 39, 3, 52, 3, -2),
    Sketcher.Constraint("Symmetric", 35, 3, 56, 3, -2),
    Sketcher.Constraint("Symmetric", 31, 3, 60, 3, -2),
    Sketcher.Constraint("Symmetric", 27, 3, 64, 3, -2),
    Sketcher.Constraint("Symmetric", 84, 3, 85, 3, -2),
    Sketcher.Constraint("PointOnObject", 3, 2, -2),
    Sketcher.Constraint("PointOnObject", 24, 2, -1),
    Sketcher.Constraint("Perpendicular", 3, 4),
    Sketcher.Constraint("Parallel", 4, 24),
    Sketcher.Constraint("Perpendicular", 24, 25),
    Sketcher.Constraint("Parallel", 25, 45),
    Sketcher.Constraint("Perpendicular", 45, 46),
    Sketcher.Constraint("Parallel", 46, 66),
    Sketcher.Constraint("Perpendicular", 66, 67),
    Sketcher.Constraint("Horizontal", 2, 2, 4, 2),
    Sketcher.Constraint("Equal", 9, 17),
    Sketcher.Constraint("Equal", 70, 0),
    Sketcher.Constraint("Equal", 82, 11),
    Sketcher.Constraint("Equal", 78, 15),
    Sketcher.Constraint("Equal", 11, 19),
    Sketcher.Constraint("Equal", 4, 24),
    Sketcher.Constraint("Diameter", 84, 4.0),
    Sketcher.Constraint("Diameter", 87, 4.3),
    Sketcher.Constraint("Radius", 1, 0.3),
    Sketcher.Constraint("DistanceX", 9, 1, 9, 2, 0.9),
    Sketcher.Constraint("DistanceX", -1, 1, 84, 3, 7.0),
    Sketcher.Constraint("DistanceY", -1, 1, 84, 3, 7.0),
    Sketcher.Constraint("DistanceY", 3, 2, -1, 1, 3.0),
    Sketcher.Constraint("DistanceY", 12, 1, -1, 1, 10.0),
    Sketcher.Constraint("DistanceX", 14, 1, -1, 1, 10.0),
    Sketcher.Constraint("DistanceX", 13, 2, 13, 1, 6.75),
    Sketcher.Constraint("Radius", 2, 6.490833),
    Sketcher.Constraint("DistanceX", 21, 1, 21, 2, 3.257251),
])
pad1 = body.newObject("PartDesign::Pad", "Pad")
pad1.Profile = sketch1
pad1.Length = 420
pad1.Reversed = True

doc.recompute()
